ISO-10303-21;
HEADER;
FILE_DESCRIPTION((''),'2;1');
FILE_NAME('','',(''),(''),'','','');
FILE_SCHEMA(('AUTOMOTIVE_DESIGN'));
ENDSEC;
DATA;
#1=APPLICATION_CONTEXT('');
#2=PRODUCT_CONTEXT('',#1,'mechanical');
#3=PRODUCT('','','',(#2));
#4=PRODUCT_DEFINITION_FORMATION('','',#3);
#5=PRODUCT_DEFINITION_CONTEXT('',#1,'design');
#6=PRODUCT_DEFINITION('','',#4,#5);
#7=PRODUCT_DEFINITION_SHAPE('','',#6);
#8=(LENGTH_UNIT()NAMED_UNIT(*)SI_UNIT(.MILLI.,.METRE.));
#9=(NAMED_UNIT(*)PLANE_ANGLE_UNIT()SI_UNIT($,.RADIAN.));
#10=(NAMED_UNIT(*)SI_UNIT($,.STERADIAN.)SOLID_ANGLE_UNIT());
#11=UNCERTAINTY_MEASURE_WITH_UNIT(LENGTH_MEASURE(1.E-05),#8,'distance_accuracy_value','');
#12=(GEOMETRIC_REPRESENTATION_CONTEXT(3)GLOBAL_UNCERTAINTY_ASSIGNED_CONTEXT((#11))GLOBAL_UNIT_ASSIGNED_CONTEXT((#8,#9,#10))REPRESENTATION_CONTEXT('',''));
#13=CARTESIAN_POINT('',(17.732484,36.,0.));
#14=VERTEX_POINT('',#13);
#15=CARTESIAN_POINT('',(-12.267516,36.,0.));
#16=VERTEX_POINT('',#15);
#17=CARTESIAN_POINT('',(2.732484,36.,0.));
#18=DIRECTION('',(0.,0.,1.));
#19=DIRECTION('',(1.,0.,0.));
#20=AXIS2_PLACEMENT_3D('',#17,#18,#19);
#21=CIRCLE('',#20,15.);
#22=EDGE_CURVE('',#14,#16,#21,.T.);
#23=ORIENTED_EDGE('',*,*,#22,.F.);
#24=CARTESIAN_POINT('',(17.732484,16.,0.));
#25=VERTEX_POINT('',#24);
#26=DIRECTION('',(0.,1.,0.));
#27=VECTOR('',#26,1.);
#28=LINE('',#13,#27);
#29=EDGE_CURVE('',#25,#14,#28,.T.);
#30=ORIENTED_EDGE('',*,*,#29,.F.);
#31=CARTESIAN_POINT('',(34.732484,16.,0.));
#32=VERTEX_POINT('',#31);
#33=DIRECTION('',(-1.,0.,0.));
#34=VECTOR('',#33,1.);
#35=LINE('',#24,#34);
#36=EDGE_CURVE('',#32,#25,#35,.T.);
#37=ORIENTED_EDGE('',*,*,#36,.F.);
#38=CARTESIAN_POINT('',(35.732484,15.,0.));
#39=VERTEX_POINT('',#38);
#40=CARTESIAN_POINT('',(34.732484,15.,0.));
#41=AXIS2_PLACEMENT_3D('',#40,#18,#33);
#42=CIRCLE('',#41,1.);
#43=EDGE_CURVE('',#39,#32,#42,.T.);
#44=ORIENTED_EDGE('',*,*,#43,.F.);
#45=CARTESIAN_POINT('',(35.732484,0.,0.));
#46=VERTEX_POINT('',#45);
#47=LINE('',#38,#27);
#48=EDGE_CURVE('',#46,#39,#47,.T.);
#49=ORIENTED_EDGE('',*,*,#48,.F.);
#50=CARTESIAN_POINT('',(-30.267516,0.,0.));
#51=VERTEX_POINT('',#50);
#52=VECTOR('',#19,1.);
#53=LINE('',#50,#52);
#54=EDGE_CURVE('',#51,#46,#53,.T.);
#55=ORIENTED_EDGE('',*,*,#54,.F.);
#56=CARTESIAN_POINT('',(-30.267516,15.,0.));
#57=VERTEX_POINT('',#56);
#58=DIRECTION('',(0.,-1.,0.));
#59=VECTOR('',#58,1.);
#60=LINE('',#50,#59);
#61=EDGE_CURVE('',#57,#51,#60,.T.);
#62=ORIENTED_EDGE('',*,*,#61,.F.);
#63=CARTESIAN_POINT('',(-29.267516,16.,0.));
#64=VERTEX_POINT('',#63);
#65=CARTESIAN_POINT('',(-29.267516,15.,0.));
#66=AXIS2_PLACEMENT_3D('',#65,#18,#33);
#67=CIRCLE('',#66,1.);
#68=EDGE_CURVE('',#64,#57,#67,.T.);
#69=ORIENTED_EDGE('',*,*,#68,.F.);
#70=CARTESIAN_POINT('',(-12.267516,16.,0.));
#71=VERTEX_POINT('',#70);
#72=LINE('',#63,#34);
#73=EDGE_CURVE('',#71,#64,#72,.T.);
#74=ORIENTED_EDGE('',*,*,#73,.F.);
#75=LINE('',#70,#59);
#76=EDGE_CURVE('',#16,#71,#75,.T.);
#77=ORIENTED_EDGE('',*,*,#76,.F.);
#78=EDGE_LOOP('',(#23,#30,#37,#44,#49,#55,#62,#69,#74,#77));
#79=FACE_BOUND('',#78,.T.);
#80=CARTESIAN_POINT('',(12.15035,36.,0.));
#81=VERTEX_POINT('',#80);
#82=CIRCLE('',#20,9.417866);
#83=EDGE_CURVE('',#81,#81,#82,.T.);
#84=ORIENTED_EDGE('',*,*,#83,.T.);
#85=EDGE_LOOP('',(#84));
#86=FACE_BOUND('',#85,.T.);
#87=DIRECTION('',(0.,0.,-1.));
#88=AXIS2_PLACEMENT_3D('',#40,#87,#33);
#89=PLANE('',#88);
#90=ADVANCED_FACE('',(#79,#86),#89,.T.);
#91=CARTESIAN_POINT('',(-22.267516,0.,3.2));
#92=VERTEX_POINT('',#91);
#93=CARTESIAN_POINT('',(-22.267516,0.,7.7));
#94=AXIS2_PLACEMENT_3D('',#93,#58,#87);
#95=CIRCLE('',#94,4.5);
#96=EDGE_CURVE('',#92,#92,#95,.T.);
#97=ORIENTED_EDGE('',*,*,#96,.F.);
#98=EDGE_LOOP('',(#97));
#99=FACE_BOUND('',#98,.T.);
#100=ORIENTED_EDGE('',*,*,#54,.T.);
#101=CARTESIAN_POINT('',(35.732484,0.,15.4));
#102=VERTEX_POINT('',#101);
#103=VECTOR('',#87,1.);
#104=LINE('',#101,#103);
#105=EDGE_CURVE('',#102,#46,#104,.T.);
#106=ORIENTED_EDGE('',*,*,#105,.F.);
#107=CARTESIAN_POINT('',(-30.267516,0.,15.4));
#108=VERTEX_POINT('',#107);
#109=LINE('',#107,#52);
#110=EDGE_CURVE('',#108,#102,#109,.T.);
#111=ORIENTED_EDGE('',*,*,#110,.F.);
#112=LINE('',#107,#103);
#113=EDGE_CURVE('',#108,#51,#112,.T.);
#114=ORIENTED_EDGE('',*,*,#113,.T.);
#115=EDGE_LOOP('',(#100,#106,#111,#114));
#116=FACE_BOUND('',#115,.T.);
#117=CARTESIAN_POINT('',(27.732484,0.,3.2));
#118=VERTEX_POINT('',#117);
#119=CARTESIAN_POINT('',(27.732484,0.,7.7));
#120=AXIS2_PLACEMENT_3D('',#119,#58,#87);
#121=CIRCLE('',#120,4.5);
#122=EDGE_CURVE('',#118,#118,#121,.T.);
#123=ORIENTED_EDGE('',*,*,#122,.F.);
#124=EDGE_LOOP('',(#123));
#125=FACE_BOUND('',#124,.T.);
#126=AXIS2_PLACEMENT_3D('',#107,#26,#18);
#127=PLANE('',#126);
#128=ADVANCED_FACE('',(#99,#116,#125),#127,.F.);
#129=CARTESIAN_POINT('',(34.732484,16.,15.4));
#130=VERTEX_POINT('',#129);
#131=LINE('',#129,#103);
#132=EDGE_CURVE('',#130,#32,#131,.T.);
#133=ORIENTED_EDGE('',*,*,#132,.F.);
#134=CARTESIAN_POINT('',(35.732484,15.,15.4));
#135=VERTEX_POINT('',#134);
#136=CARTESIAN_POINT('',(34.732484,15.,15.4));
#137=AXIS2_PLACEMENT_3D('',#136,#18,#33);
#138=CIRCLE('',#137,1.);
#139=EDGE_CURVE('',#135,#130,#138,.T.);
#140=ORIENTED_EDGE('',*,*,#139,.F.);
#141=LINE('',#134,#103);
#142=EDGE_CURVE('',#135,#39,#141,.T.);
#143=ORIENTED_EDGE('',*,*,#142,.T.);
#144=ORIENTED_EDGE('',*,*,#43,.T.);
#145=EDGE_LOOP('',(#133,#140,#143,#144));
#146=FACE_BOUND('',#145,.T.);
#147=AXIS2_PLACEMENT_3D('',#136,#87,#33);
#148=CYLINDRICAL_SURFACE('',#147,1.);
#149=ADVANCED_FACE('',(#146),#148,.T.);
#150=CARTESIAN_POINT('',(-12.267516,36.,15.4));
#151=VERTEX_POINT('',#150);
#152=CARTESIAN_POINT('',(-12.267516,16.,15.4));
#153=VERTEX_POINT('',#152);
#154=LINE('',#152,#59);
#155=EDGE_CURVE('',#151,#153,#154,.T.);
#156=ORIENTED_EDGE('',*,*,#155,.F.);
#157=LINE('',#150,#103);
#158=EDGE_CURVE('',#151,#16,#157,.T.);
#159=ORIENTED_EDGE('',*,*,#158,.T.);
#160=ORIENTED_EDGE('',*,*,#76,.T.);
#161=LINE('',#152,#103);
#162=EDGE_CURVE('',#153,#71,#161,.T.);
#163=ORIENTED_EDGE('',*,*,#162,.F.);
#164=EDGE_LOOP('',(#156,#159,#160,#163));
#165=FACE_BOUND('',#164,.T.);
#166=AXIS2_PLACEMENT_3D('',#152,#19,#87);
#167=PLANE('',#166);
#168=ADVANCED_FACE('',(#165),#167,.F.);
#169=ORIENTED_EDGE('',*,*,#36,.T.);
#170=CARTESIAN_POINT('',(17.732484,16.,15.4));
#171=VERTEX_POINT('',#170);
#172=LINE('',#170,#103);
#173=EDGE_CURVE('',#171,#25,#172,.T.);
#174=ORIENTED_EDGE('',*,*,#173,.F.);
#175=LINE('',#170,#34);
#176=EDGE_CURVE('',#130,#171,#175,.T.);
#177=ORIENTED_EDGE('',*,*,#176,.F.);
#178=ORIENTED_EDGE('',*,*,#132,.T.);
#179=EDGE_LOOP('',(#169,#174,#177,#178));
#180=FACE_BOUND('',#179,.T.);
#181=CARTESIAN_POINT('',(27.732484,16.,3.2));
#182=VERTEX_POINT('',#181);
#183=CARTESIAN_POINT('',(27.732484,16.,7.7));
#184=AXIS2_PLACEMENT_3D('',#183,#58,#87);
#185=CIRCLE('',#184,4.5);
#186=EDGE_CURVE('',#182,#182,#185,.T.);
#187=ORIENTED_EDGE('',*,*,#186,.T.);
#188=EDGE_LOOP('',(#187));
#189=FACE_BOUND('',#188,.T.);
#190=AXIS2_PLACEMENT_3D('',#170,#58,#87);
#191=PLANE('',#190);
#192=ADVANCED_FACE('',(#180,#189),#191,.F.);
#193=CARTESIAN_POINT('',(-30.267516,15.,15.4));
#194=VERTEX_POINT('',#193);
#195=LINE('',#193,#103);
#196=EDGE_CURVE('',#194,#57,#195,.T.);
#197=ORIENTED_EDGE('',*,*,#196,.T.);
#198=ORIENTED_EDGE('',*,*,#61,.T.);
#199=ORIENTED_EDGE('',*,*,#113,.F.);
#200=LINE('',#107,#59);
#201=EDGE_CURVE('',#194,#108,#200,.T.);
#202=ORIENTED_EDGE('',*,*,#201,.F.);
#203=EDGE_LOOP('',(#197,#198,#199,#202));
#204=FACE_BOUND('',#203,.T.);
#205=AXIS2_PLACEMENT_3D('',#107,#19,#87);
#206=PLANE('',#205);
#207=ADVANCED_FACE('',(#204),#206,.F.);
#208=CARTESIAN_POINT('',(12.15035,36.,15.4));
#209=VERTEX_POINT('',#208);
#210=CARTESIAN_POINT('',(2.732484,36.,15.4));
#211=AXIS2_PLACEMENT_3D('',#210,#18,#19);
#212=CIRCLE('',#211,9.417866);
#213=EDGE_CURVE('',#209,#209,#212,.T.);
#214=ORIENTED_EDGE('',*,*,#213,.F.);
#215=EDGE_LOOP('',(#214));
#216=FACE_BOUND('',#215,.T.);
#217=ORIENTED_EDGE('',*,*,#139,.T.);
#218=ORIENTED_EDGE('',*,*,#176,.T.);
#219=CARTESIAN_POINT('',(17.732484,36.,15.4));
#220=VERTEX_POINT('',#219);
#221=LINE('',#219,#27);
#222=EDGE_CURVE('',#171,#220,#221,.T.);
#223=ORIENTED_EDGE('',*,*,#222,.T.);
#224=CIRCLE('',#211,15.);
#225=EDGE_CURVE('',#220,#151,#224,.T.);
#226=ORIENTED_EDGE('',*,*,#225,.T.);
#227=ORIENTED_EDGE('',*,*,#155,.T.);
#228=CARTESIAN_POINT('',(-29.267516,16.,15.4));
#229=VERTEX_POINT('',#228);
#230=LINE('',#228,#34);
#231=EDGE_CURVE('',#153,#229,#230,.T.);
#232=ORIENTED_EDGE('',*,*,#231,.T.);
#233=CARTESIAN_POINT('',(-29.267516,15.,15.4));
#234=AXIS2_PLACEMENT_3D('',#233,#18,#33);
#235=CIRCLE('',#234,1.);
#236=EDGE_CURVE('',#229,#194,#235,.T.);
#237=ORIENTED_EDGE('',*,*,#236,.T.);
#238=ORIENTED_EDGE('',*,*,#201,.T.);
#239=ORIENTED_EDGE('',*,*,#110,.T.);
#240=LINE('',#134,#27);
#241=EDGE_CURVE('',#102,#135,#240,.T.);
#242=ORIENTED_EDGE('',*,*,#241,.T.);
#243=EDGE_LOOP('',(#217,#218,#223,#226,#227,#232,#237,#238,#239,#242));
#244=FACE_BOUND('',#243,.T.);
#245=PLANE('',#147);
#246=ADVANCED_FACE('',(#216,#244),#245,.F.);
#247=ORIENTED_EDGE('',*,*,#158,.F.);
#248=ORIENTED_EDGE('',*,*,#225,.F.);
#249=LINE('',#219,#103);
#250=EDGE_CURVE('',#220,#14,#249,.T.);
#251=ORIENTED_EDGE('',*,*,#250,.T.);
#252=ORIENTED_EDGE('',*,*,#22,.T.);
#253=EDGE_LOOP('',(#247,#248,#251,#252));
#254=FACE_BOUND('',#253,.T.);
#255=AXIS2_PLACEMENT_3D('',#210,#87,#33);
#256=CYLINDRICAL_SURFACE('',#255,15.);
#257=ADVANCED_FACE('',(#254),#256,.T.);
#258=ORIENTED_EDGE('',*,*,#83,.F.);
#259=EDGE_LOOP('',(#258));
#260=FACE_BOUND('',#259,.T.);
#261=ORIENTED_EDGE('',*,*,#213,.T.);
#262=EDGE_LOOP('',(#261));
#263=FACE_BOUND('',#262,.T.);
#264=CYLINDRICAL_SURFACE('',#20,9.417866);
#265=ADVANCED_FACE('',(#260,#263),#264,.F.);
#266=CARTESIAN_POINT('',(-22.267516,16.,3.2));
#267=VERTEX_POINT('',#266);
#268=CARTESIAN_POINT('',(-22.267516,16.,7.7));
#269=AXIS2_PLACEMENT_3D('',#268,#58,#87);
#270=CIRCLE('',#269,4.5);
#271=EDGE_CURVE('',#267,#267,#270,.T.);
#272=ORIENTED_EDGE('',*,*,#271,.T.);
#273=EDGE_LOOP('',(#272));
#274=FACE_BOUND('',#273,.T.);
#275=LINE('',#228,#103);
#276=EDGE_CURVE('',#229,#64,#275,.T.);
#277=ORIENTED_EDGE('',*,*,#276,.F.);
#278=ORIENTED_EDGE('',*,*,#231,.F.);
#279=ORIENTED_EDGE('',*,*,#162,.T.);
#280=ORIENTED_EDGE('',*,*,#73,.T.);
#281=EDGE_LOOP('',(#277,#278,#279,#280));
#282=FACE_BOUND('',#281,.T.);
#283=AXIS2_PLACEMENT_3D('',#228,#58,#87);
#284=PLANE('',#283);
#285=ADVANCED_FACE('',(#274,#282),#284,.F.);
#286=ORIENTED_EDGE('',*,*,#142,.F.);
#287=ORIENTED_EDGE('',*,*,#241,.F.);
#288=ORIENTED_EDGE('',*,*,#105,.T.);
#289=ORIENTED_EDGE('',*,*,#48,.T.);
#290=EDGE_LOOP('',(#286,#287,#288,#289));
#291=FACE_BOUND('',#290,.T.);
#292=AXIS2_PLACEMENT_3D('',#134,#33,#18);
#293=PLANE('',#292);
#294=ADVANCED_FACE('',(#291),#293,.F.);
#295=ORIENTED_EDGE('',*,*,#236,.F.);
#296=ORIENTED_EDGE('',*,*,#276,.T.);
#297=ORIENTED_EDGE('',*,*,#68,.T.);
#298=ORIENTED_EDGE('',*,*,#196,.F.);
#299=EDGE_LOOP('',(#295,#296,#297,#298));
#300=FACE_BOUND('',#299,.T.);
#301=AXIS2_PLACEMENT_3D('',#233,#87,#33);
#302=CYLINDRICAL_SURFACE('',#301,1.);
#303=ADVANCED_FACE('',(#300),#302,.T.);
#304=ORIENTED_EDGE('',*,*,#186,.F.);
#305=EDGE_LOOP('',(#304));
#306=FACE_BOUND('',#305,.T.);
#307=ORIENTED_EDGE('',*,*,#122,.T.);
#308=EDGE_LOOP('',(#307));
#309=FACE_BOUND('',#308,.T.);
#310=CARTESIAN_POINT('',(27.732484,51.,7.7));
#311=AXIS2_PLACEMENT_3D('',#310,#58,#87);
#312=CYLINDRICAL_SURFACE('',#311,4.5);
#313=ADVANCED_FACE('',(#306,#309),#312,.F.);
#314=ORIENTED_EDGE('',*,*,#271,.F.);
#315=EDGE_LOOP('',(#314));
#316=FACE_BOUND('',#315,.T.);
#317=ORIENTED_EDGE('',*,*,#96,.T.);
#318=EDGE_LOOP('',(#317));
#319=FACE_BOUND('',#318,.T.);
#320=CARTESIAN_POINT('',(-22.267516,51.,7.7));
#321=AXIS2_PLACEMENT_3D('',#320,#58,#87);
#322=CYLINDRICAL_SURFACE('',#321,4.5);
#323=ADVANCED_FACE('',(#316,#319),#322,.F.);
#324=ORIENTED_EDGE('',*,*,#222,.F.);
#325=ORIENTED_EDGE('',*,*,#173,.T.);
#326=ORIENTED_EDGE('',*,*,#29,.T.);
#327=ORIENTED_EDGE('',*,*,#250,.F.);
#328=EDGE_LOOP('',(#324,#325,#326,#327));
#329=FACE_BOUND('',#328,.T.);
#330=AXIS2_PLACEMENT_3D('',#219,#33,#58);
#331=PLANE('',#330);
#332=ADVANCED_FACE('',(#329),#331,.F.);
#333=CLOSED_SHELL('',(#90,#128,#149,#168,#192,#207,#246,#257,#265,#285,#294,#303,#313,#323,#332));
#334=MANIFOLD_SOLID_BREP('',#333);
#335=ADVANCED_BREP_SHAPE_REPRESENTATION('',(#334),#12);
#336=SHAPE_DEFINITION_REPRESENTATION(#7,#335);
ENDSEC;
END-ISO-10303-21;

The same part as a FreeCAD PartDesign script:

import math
import FreeCAD as App
import Part
import Sketcher
Q = App.Units.Quantity

doc = App.newDocument("Part")
params = doc.addObject("Spreadsheet::Sheet", "Params")
for row, (alias, value) in enumerate([
    ("sketch1_radius", "1 mm"),
    ("sketch1_radius2", "15 mm"),
    ("sketch1_width", "66 mm"),
    ("sketch1_height", "15 mm"),
    ("sketch1_height2", "20 mm"),
    ("pad1_length", "15.4 mm"),
    ("sketch3_diameter", "9 mm"),
], start=1):
    params.set(f"A{row}", alias)
    params.set(f"B{row}", "=" + value)
    params.setAlias(f"B{row}", alias)

body = doc.addObject("PartDesign::Body", "Body")

sketch1 = body.newObject("Sketcher::SketchObject", "Sketch")
sketch1.AttachmentSupport = (doc.getObject("XY_Plane"), [""])
sketch1.MapMode = "FlatFace"
sketch1.addGeometry([
    Part.LineSegment(App.Vector(-30.3, 15, 0), App.Vector(-30.3, 0, 0)),
    Part.LineSegment(App.Vector(-30.3, 0, 0), App.Vector(35.7, 0, 0)),
    Part.LineSegment(App.Vector(35.7, 0, 0), App.Vector(35.7, 15, 0)),
    Part.ArcOfCircle(Part.Circle(App.Vector(34.7, 15, 0), App.Vector(0, 0, 1), 1), math.radians(0), math.radians(90)),
    Part.LineSegment(App.Vector(34.7, 16, 0), App.Vector(17.7, 16, 0)),
    Part.LineSegment(App.Vector(17.7, 16, 0), App.Vector(17.7, 36, 0)),
    Part.ArcOfCircle(Part.Circle(App.Vector(2.7, 36, 0), App.Vector(0, 0, 1), 15), math.radians(0), math.radians(180)),
    Part.LineSegment(App.Vector(-12.3, 36, 0), App.Vector(-12.3, 16, 0)),
    Part.LineSegment(App.Vector(-12.3, 16, 0), App.Vector(-29.3, 16, 0)),
    Part.ArcOfCircle(Part.Circle(App.Vector(-29.3, 15, 0), App.Vector(0, 0, 1), 1), math.radians(90), math.radians(180)),
], False)
sketch1.addConstraint([
    Sketcher.Constraint("Coincident", 0, 2, 1, 1),
    Sketcher.Constraint("Coincident", 1, 2, 2, 1),
    Sketcher.Constraint("Tangent", 2, 2, 3, 1),
    Sketcher.Constraint("Tangent", 3, 2, 4, 1),
    Sketcher.Constraint("Coincident", 4, 2, 5, 1),
    Sketcher.Constraint("Tangent", 5, 2, 6, 1),
    Sketcher.Constraint("Tangent", 6, 2, 7, 1),
    Sketcher.Constraint("Coincident", 7, 2, 8, 1),
    Sketcher.Constraint("Tangent", 8, 2, 9, 1),
    Sketcher.Constraint("Tangent", 9, 2, 0, 1),
    Sketcher.Constraint("Vertical", 0),
    Sketcher.Constraint("Horizontal", 1),
    Sketcher.Constraint("Vertical", 2),
    Sketcher.Constraint("Horizontal", 4),
    Sketcher.Constraint("Vertical", 5),
    Sketcher.Constraint("Vertical", 7),
    Sketcher.Constraint("Horizontal", 8),
    Sketcher.Constraint("Equal", 3, 9),
    Sketcher.Constraint("PointOnObject", 0, 2, -1),
    Sketcher.Constraint("Horizontal", 3, 3, 9, 3),
    Sketcher.Constraint("Equal", 4, 8),
    Sketcher.Constraint("Radius", 3, Q("1 mm")),
    Sketcher.Constraint("Radius", 6, Q("15 mm")),
    Sketcher.Constraint("DistanceX", 1, 1, 1, 2, Q("66 mm")),
    Sketcher.Constraint("DistanceY", 0, 2, 0, 1, Q("15 mm")),
    Sketcher.Constraint("DistanceY", 5, 1, 5, 2, Q("20 mm")),
    Sketcher.Constraint("DistanceX", -1, 1, 3, 3, Q("34.732484 mm")),
])
sketch1.setExpression("Constraints[21]", "Params.sketch1_radius")
sketch1.setExpression("Constraints[22]", "Params.sketch1_radius2")
sketch1.setExpression("Constraints[23]", "Params.sketch1_width")
sketch1.setExpression("Constraints[24]", "Params.sketch1_height")
sketch1.setExpression("Constraints[25]", "Params.sketch1_height2")
pad1 = body.newObject("PartDesign::Pad", "Pad")
pad1.Profile = sketch1
pad1.setExpression("Length", "Params.pad1_length")

sketch2 = body.newObject("Sketcher::SketchObject", "Sketch001")
sketch2.AttachmentSupport = (doc.getObject("XY_Plane"), [""])
sketch2.MapMode = "FlatFace"
sketch2.AttachmentOffset = App.Placement(App.Vector(0, 0, 15.4), App.Rotation())
sketch2.addGeometry(Part.Circle(App.Vector(3, 36, 0), App.Vector(0, 0, 1), 9), False)
sketch2.addConstraint([
    Sketcher.Constraint("DistanceY", -1, 1, 0, 3, Q("36 mm")),
    Sketcher.Constraint("Diameter", 0, Q("18.835733 mm")),
    Sketcher.Constraint("DistanceX", -1, 1, 0, 3, Q("2.732484 mm")),
])
pocket1 = body.newObject("PartDesign::Pocket", "Pocket")
pocket1.Profile = sketch2
pocket1.Type = "ThroughAll"

sketch3 = body.newObject("Sketcher::SketchObject", "Sketch002")
sketch3.AttachmentSupport = (doc.getObject("XZ_Plane"), [""])
sketch3.MapMode = "FlatFace"
sketch3.addGeometry([
    Part.Circle(App.Vector(-22.3, 7.7, 0), App.Vector(0, 0, 1), 4.5),
    Part.Circle(App.Vector(27.7, 7.7, 0), App.Vector(0, 0, 1), 4.5),
], False)
sketch3.addConstraint([
    Sketcher.Constraint("Equal", 0, 1),
    Sketcher.Constraint("Horizontal", 0, 3, 1, 3),
    Sketcher.Constraint("Diameter", 0, Q("9 mm")),
    Sketcher.Constraint("DistanceX", 0, 3, 1, 3, Q("50 mm")),
    Sketcher.Constraint("DistanceY", -1, 1, 0, 3, Q("7.7 mm")),
    Sketcher.Constraint("DistanceX", 0, 3, -1, 1, Q("22.267516 mm")),
])
sketch3.setExpression("Constraints[2]", "Params.sketch3_diameter")
pocket2 = body.newObject("PartDesign::Pocket", "Pocket001")
pocket2.Profile = sketch3
pocket2.Type = "ThroughAll"

doc.recompute()
